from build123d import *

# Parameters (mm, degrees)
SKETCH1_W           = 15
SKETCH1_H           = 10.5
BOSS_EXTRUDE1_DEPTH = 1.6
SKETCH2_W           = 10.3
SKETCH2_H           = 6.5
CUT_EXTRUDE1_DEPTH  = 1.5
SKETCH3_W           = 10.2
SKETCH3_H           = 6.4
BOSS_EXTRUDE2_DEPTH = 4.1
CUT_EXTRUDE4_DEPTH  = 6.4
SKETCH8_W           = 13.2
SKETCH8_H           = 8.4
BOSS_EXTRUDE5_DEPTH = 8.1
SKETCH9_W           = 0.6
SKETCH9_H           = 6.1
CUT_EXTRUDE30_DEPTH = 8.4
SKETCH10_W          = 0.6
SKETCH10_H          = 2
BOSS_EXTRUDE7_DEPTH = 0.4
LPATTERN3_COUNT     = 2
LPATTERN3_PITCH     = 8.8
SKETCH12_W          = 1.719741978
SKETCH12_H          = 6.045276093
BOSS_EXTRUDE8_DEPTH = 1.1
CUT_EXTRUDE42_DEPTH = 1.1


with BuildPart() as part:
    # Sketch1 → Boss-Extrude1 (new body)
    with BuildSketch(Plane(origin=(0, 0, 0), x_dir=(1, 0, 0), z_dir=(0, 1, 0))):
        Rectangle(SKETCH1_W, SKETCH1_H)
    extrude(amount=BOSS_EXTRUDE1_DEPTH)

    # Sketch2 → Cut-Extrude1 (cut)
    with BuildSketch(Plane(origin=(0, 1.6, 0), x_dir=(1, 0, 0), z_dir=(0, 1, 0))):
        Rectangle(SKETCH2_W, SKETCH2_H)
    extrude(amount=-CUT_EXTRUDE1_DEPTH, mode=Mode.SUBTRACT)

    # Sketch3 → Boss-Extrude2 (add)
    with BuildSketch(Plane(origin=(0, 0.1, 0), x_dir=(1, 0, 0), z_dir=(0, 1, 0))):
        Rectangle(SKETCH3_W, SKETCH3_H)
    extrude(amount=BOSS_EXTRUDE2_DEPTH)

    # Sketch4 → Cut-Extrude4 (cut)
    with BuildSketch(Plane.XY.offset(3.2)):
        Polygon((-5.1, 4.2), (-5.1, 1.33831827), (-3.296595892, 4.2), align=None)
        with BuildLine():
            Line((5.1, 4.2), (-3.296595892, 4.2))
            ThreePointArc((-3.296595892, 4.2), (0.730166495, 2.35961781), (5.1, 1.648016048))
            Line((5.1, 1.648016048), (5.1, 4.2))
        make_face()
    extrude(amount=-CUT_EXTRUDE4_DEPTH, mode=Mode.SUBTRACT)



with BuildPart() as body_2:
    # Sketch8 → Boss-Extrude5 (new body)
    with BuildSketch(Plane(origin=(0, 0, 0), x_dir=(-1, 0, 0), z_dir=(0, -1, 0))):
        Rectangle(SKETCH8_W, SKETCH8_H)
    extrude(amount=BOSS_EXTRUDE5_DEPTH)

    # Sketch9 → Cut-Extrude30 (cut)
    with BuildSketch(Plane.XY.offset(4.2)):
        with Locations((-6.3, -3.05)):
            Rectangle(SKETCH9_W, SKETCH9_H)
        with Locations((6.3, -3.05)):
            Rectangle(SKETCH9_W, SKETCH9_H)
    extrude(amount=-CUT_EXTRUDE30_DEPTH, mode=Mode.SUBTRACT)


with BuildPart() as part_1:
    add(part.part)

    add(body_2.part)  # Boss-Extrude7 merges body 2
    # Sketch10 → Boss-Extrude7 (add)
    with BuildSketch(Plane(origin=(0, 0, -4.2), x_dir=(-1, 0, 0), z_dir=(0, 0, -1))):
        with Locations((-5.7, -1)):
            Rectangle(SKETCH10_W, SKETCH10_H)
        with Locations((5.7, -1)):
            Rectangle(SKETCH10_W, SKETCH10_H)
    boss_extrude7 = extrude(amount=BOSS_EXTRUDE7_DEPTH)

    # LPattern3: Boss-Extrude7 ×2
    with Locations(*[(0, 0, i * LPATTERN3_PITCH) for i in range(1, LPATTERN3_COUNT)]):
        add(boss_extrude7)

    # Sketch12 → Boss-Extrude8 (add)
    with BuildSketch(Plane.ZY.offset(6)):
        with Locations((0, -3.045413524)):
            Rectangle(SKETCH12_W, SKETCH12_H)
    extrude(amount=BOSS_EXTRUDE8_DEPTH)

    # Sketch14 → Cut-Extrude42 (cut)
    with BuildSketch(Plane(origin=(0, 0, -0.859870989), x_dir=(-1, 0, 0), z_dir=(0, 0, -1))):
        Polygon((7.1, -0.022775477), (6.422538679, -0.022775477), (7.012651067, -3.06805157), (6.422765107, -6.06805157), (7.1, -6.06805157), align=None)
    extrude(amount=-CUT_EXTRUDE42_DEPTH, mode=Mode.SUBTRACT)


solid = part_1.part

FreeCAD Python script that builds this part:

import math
import FreeCAD as App
import Part
import Sketcher
Q = App.Units.Quantity

doc = App.newDocument("Part")
body = doc.addObject("PartDesign::Body", "Body")

sketch1 = doc.addObject("Sketcher::SketchObject", "Sketch")
body.addObject(sketch1)
sketch1.AttachmentSupport = (doc.XZ_Plane, [""])
sketch1.MapMode = "FlatFace"
sketch1.addGeometry([
    Part.LineSegment(App.Vector(-8, -5, 0), App.Vector(-8, 5, 0)),
    Part.LineSegment(App.Vector(-8, 5, 0), App.Vector(8, 5, 0)),
    Part.LineSegment(App.Vector(8, 5, 0), App.Vector(8, -5, 0)),
    Part.LineSegment(App.Vector(8, -5, 0), App.Vector(-8, -5, 0)),
], False)
sketch1.addConstraint([
    Sketcher.Constraint("Coincident", 0, 2, 1, 1),
    Sketcher.Constraint("Coincident", 1, 2, 2, 1),
    Sketcher.Constraint("Coincident", 2, 2, 3, 1),
    Sketcher.Constraint("Coincident", 3, 2, 0, 1),
    Sketcher.Constraint("Vertical", 0),
    Sketcher.Constraint("Horizontal", 1),
    Sketcher.Constraint("Vertical", 2),
    Sketcher.Constraint("Horizontal", 3),
    Sketcher.Constraint("Symmetric", 0, 2, 2, 2, -1, 1),
    Sketcher.Constraint("DistanceX", 1, 1, 1, 2, Q("15 mm")),
    Sketcher.Constraint("DistanceY", 0, 1, 0, 2, Q("10.5 mm")),
])
pad1 = doc.addObject("PartDesign::Pad", "Pad")
body.addObject(pad1)
pad1.Profile = sketch1
pad1.Length = 1.6
pad1.Reversed = True

sketch2 = doc.addObject("Sketcher::SketchObject", "Sketch001")
body.addObject(sketch2)
sketch2.AttachmentSupport = (doc.XZ_Plane, [""])
sketch2.MapMode = "FlatFace"
sketch2.AttachmentOffset = App.Placement(App.Vector(0, 0, -1.6), App.Rotation())
sketch2.addGeometry([
    Part.LineSegment(App.Vector(-5, -3, 0), App.Vector(-5, 3, 0)),
    Part.LineSegment(App.Vector(-5, 3, 0), App.Vector(5, 3, 0)),
    Part.LineSegment(App.Vector(5, 3, 0), App.Vector(5, -3, 0)),
    Part.LineSegment(App.Vector(5, -3, 0), App.Vector(-5, -3, 0)),
], False)
sketch2.addConstraint([
    Sketcher.Constraint("Coincident", 0, 2, 1, 1),
    Sketcher.Constraint("Coincident", 1, 2, 2, 1),
    Sketcher.Constraint("Coincident", 2, 2, 3, 1),
    Sketcher.Constraint("Coincident", 3, 2, 0, 1),
    Sketcher.Constraint("Vertical", 0),
    Sketcher.Constraint("Horizontal", 1),
    Sketcher.Constraint("Vertical", 2),
    Sketcher.Constraint("Horizontal", 3),
    Sketcher.Constraint("Symmetric", 0, 2, 2, 2, -1, 1),
    Sketcher.Constraint("DistanceX", 1, 1, 1, 2, Q("10.3 mm")),
    Sketcher.Constraint("DistanceY", 0, 1, 0, 2, Q("6.5 mm")),
])
pocket1 = doc.addObject("PartDesign::Pocket", "Pocket")
body.addObject(pocket1)
pocket1.Profile = sketch2
pocket1.Length = 1.5
pocket1.Reversed = True

sketch3 = doc.addObject("Sketcher::SketchObject", "Sketch002")
body.addObject(sketch3)
sketch3.AttachmentSupport = (doc.XZ_Plane, [""])
sketch3.MapMode = "FlatFace"
sketch3.AttachmentOffset = App.Placement(App.Vector(0, 0, -0.1), App.Rotation())
sketch3.addGeometry([
    Part.LineSegment(App.Vector(-5, -3, 0), App.Vector(-5, 3, 0)),
    Part.LineSegment(App.Vector(-5, 3, 0), App.Vector(5, 3, 0)),
    Part.LineSegment(App.Vector(5, 3, 0), App.Vector(5, -3, 0)),
    Part.LineSegment(App.Vector(5, -3, 0), App.Vector(-5, -3, 0)),
], False)
sketch3.addConstraint([
    Sketcher.Constraint("Coincident", 0, 2, 1, 1),
    Sketcher.Constraint("Coincident", 1, 2, 2, 1),
    Sketcher.Constraint("Coincident", 2, 2, 3, 1),
    Sketcher.Constraint("Coincident", 3, 2, 0, 1),
    Sketcher.Constraint("Vertical", 0),
    Sketcher.Constraint("Horizontal", 1),
    Sketcher.Constraint("Vertical", 2),
    Sketcher.Constraint("Horizontal", 3),
    Sketcher.Constraint("Symmetric", 0, 2, 2, 2, -1, 1),
    Sketcher.Constraint("DistanceX", 1, 1, 1, 2, Q("10.2 mm")),
    Sketcher.Constraint("DistanceY", 0, 1, 0, 2, Q("6.4 mm")),
])
pad2 = doc.addObject("PartDesign::Pad", "Pad001")
body.addObject(pad2)
pad2.Profile = sketch3
pad2.Length = 4.1
pad2.Reversed = True

sketch4 = doc.addObject("Sketcher::SketchObject", "Sketch003")
body.addObject(sketch4)
sketch4.AttachmentSupport = (doc.XY_Plane, [""])
sketch4.MapMode = "FlatFace"
sketch4.AttachmentOffset = App.Placement(App.Vector(0, 0, 3.2), App.Rotation())
sketch4.addGeometry([
    Part.LineSegment(App.Vector(-5.1, 4.2, 0), App.Vector(-5.1, 1.3, 0)),
    Part.LineSegment(App.Vector(-5.1, 1.3, 0), App.Vector(-3.3, 4.2, 0)),
    Part.LineSegment(App.Vector(-3.3, 4.2, 0), App.Vector(-5.1, 4.2, 0)),
    Part.LineSegment(App.Vector(5.1, 4.2, 0), App.Vector(-3.3, 4.2, 0)),
    Part.ArcOfCircle(Part.Circle(App.Vector(5.6, 18.3, 0), App.Vector(0, 0, 1), 16.6), math.radians(-122), math.radians(-92)),
    Part.LineSegment(App.Vector(5.1, 1.6, 0), App.Vector(5.1, 4.2, 0)),
], False)
sketch4.addConstraint([
    Sketcher.Constraint("Coincident", 0, 2, 1, 1),
    Sketcher.Constraint("Coincident", 1, 2, 2, 1),
    Sketcher.Constraint("Coincident", 2, 2, 0, 1),
    Sketcher.Constraint("Coincident", 3, 2, 4, 1),
    Sketcher.Constraint("Coincident", 4, 2, 5, 1),
    Sketcher.Constraint("Coincident", 5, 2, 3, 1),
    Sketcher.Constraint("Vertical", 0),
    Sketcher.Constraint("Horizontal", 2),
    Sketcher.Constraint("Horizontal", 3),
    Sketcher.Constraint("Vertical", 5),
    Sketcher.Constraint("Coincident", 3, 2, 1, 2),
    Sketcher.Constraint("DistanceX", 0, 2, -1, 1, Q("5.1 mm")),
    Sketcher.Constraint("DistanceY", -1, 1, 1, 2, Q("4.2 mm")),
    Sketcher.Constraint("DistanceX", -1, 1, 4, 2, Q("5.1 mm")),
    Sketcher.Constraint("Radius", 4, Q("16.615037 mm")),
    Sketcher.Constraint("DistanceY", 0, 2, 0, 1, Q("2.861682 mm")),
    Sketcher.Constraint("DistanceX", 2, 2, 2, 1, Q("1.803404 mm")),
    Sketcher.Constraint("DistanceY", 5, 1, 5, 2, Q("2.551984 mm")),
])
pocket2 = doc.addObject("PartDesign::Pocket", "Pocket001")
body.addObject(pocket2)
pocket2.Profile = sketch4
pocket2.Length = 6.4
body2 = doc.addObject("PartDesign::Body", "Body001")

sketch5 = doc.addObject("Sketcher::SketchObject", "Sketch004")
body2.addObject(sketch5)
sketch5.AttachmentSupport = (doc.getObject("XZ_Plane001"), [""])
sketch5.MapMode = "FlatFace"
sketch5.addGeometry([
    Part.LineSegment(App.Vector(7, -4, 0), App.Vector(7, 4, 0)),
    Part.LineSegment(App.Vector(7, 4, 0), App.Vector(-7, 4, 0)),
    Part.LineSegment(App.Vector(-7, 4, 0), App.Vector(-7, -4, 0)),
    Part.LineSegment(App.Vector(-7, -4, 0), App.Vector(7, -4, 0)),
], False)
sketch5.addConstraint([
    Sketcher.Constraint("Coincident", 0, 2, 1, 1),
    Sketcher.Constraint("Coincident", 1, 2, 2, 1),
    Sketcher.Constraint("Coincident", 2, 2, 3, 1),
    Sketcher.Constraint("Coincident", 3, 2, 0, 1),
    Sketcher.Constraint("Vertical", 0),
    Sketcher.Constraint("Horizontal", 1),
    Sketcher.Constraint("Vertical", 2),
    Sketcher.Constraint("Horizontal", 3),
    Sketcher.Constraint("Symmetric", 0, 2, 2, 2, -1, 1),
    Sketcher.Constraint("DistanceX", 1, 2, 1, 1, Q("13.2 mm")),
    Sketcher.Constraint("DistanceY", 0, 1, 0, 2, Q("8.4 mm")),
])
pad3 = doc.addObject("PartDesign::Pad", "Pad002")
body2.addObject(pad3)
pad3.Profile = sketch5
pad3.Length = 8.1

sketch6 = doc.addObject("Sketcher::SketchObject", "Sketch005")
body2.addObject(sketch6)
sketch6.AttachmentSupport = (doc.getObject("XY_Plane001"), [""])
sketch6.MapMode = "FlatFace"
sketch6.AttachmentOffset = App.Placement(App.Vector(0, 0, 4.2), App.Rotation())
sketch6.addGeometry([
    Part.LineSegment(App.Vector(-6.6, 0, 0), App.Vector(-6.6, -6.1, 0)),
    Part.LineSegment(App.Vector(-6.6, -6.1, 0), App.Vector(-6, -6.1, 0)),
    Part.LineSegment(App.Vector(-6, -6.1, 0), App.Vector(-6, 0, 0)),
    Part.LineSegment(App.Vector(-6, 0, 0), App.Vector(-6.6, 0, 0)),
    Part.LineSegment(App.Vector(6, 0, 0), App.Vector(6, -6.1, 0)),
    Part.LineSegment(App.Vector(6, -6.1, 0), App.Vector(6.6, -6.1, 0)),
    Part.LineSegment(App.Vector(6.6, -6.1, 0), App.Vector(6.6, 0, 0)),
    Part.LineSegment(App.Vector(6.6, 0, 0), App.Vector(6, 0, 0)),
], False)
sketch6.addConstraint([
    Sketcher.Constraint("Coincident", 0, 2, 1, 1),
    Sketcher.Constraint("Coincident", 1, 2, 2, 1),
    Sketcher.Constraint("Coincident", 2, 2, 3, 1),
    Sketcher.Constraint("Coincident", 3, 2, 0, 1),
    Sketcher.Constraint("Coincident", 4, 2, 5, 1),
    Sketcher.Constraint("Coincident", 5, 2, 6, 1),
    Sketcher.Constraint("Coincident", 6, 2, 7, 1),
    Sketcher.Constraint("Coincident", 7, 2, 4, 1),
    Sketcher.Constraint("Vertical", 0),
    Sketcher.Constraint("Horizontal", 1),
    Sketcher.Constraint("Vertical", 2),
    Sketcher.Constraint("Horizontal", 3),
    Sketcher.Constraint("Vertical", 4),
    Sketcher.Constraint("Horizontal", 5),
    Sketcher.Constraint("Vertical", 6),
    Sketcher.Constraint("Horizontal", 7),
    Sketcher.Constraint("Symmetric", 3, 2, 6, 2, -1, 1),
    Sketcher.Constraint("Symmetric", 1, 2, 4, 2, -2),
    Sketcher.Constraint("PointOnObject", 2, 2, -1),
    Sketcher.Constraint("DistanceX", 1, 1, 1, 2, Q("0.6 mm")),
    Sketcher.Constraint("DistanceY", 0, 2, 0, 1, Q("6.1 mm")),
    Sketcher.Constraint("DistanceX", 1, 2, -1, 1, Q("6 mm")),
])
pocket3 = doc.addObject("PartDesign::Pocket", "Pocket002")
body2.addObject(pocket3)
pocket3.Profile = sketch6
pocket3.Length = 8.4
doc.recompute()

boolean = doc.addObject("PartDesign::Boolean", "Boolean")
body.addObject(boolean)
boolean.Type = "Fuse"
boolean.addObjects([body2])

sketch7 = doc.addObject("Sketcher::SketchObject", "Sketch006")
body.addObject(sketch7)
sketch7.AttachmentSupport = (doc.XY_Plane, [""])
sketch7.MapMode = "FlatFace"
sketch7.AttachmentOffset = App.Placement(App.Vector(0, 0, -4.2), App.Rotation())
sketch7.addGeometry([
    Part.LineSegment(App.Vector(6, 0, 0), App.Vector(6, -2, 0)),
    Part.LineSegment(App.Vector(6, -2, 0), App.Vector(5.4, -2, 0)),
    Part.LineSegment(App.Vector(5.4, -2, 0), App.Vector(5.4, 0, 0)),
    Part.LineSegment(App.Vector(5.4, 0, 0), App.Vector(6, 0, 0)),
    Part.LineSegment(App.Vector(-5.4, 0, 0), App.Vector(-5.4, -2, 0)),
    Part.LineSegment(App.Vector(-5.4, -2, 0), App.Vector(-6, -2, 0)),
    Part.LineSegment(App.Vector(-6, -2, 0), App.Vector(-6, 0, 0)),
    Part.LineSegment(App.Vector(-6, 0, 0), App.Vector(-5.4, 0, 0)),
], False)
sketch7.addConstraint([
    Sketcher.Constraint("Coincident", 0, 2, 1, 1),
    Sketcher.Constraint("Coincident", 1, 2, 2, 1),
    Sketcher.Constraint("Coincident", 2, 2, 3, 1),
    Sketcher.Constraint("Coincident", 3, 2, 0, 1),
    Sketcher.Constraint("Coincident", 4, 2, 5, 1),
    Sketcher.Constraint("Coincident", 5, 2, 6, 1),
    Sketcher.Constraint("Coincident", 6, 2, 7, 1),
    Sketcher.Constraint("Coincident", 7, 2, 4, 1),
    Sketcher.Constraint("Vertical", 0),
    Sketcher.Constraint("Horizontal", 1),
    Sketcher.Constraint("Vertical", 2),
    Sketcher.Constraint("Horizontal", 3),
    Sketcher.Constraint("Vertical", 4),
    Sketcher.Constraint("Horizontal", 5),
    Sketcher.Constraint("Vertical", 6),
    Sketcher.Constraint("Horizontal", 7),
    Sketcher.Constraint("Symmetric", 3, 2, 6, 2, -1, 1),
    Sketcher.Constraint("Symmetric", 1, 2, 4, 2, -2),
    Sketcher.Constraint("PointOnObject", 2, 2, -1),
    Sketcher.Constraint("DistanceY", 0, 2, 0, 1, Q("2 mm")),
    Sketcher.Constraint("DistanceX", 1, 2, 1, 1, Q("0.6 mm")),
    Sketcher.Constraint("DistanceX", -1, 1, 0, 2, Q("6 mm")),
])
pad4 = doc.addObject("PartDesign::Pad", "Pad003")
body.addObject(pad4)
pad4.Profile = sketch7
pad4.Length = 0.4
pad4.Reversed = True
doc.recompute()

linearpattern = doc.addObject("PartDesign::LinearPattern", "LinearPattern")
body.addObject(linearpattern)
linearpattern.Originals = [pad4]
linearpattern.Direction = (doc.Z_Axis, [""])
linearpattern.Mode = "offset"
linearpattern.Offset = 8.8
linearpattern.Occurrences = 2
body.Tip = linearpattern

sketch8 = doc.addObject("Sketcher::SketchObject", "Sketch007")
body.addObject(sketch8)
sketch8.AttachmentSupport = (doc.YZ_Plane, [""])
sketch8.MapMode = "FlatFace"
sketch8.AttachmentOffset = App.Placement(App.Vector(0, 0, -6), App.Rotation())
sketch8.addGeometry([
    Part.LineSegment(App.Vector(0, -0.9, 0), App.Vector(-6.1, -0.9, 0)),
    Part.LineSegment(App.Vector(-6.1, -0.9, 0), App.Vector(-6.1, 0.9, 0)),
    Part.LineSegment(App.Vector(-6.1, 0.9, 0), App.Vector(0, 0.9, 0)),
    Part.LineSegment(App.Vector(0, 0.9, 0), App.Vector(0, -0.9, 0)),
], False)
sketch8.addConstraint([
    Sketcher.Constraint("Coincident", 0, 2, 1, 1),
    Sketcher.Constraint("Coincident", 1, 2, 2, 1),
    Sketcher.Constraint("Coincident", 2, 2, 3, 1),
    Sketcher.Constraint("Coincident", 3, 2, 0, 1),
    Sketcher.Constraint("Horizontal", 0),
    Sketcher.Constraint("Vertical", 1),
    Sketcher.Constraint("Horizontal", 2),
    Sketcher.Constraint("Vertical", 3),
    Sketcher.Constraint("DistanceY", 1, 1, 1, 2, Q("1.719742 mm")),
    Sketcher.Constraint("DistanceX", 0, 2, 0, 1, Q("6.045276 mm")),
    Sketcher.Constraint("DistanceX", 0, 2, -1, 1, Q("6.068052 mm")),
    Sketcher.Constraint("DistanceY", 0, 2, -1, 1, Q("0.859871 mm")),
])
pad5 = doc.addObject("PartDesign::Pad", "Pad004")
body.addObject(pad5)
pad5.Profile = sketch8
pad5.Length = 1.1
pad5.Reversed = True

sketch9 = doc.addObject("Sketcher::SketchObject", "Sketch008")
body.addObject(sketch9)
sketch9.AttachmentSupport = (doc.XY_Plane, [""])
sketch9.MapMode = "FlatFace"
sketch9.AttachmentOffset = App.Placement(App.Vector(0, 0, -0.859871), App.Rotation())
sketch9.addGeometry([
    Part.LineSegment(App.Vector(-7.1, 0, 0), App.Vector(-6.4, 0, 0)),
    Part.LineSegment(App.Vector(-6.4, 0, 0), App.Vector(-7, -3.1, 0)),
    Part.LineSegment(App.Vector(-7, -3.1, 0), App.Vector(-6.4, -6.1, 0)),
    Part.LineSegment(App.Vector(-6.4, -6.1, 0), App.Vector(-7.1, -6.1, 0)),
    Part.LineSegment(App.Vector(-7.1, -6.1, 0), App.Vector(-7.1, 0, 0)),
], False)
sketch9.addConstraint([
    Sketcher.Constraint("Coincident", 0, 2, 1, 1),
    Sketcher.Constraint("Coincident", 1, 2, 2, 1),
    Sketcher.Constraint("Coincident", 2, 2, 3, 1),
    Sketcher.Constraint("Coincident", 3, 2, 4, 1),
    Sketcher.Constraint("Coincident", 4, 2, 0, 1),
    Sketcher.Constraint("Horizontal", 0),
    Sketcher.Constraint("Horizontal", 3),
    Sketcher.Constraint("Vertical", 4),
    Sketcher.Constraint("DistanceY", 2, 2, 1, 2, Q("3 mm")),
    Sketcher.Constraint("DistanceX", 3, 2, -1, 1, Q("7.1 mm")),
    Sketcher.Constraint("DistanceX", 0, 1, 0, 2, Q("0.677461 mm")),
    Sketcher.Constraint("DistanceX", 3, 2, 3, 1, Q("0.677235 mm")),
    Sketcher.Constraint("DistanceY", 4, 1, 4, 2, Q("6.045276 mm")),
    Sketcher.Constraint("DistanceX", 1, 2, -1, 1, Q("7.012651 mm")),
    Sketcher.Constraint("DistanceY", 1, 2, -1, 1, Q("3.068052 mm")),
])
pocket4 = doc.addObject("PartDesign::Pocket", "Pocket003")
body.addObject(pocket4)
pocket4.Profile = sketch9
pocket4.Length = 1.1
pocket4.Reversed = True

doc.recompute()
